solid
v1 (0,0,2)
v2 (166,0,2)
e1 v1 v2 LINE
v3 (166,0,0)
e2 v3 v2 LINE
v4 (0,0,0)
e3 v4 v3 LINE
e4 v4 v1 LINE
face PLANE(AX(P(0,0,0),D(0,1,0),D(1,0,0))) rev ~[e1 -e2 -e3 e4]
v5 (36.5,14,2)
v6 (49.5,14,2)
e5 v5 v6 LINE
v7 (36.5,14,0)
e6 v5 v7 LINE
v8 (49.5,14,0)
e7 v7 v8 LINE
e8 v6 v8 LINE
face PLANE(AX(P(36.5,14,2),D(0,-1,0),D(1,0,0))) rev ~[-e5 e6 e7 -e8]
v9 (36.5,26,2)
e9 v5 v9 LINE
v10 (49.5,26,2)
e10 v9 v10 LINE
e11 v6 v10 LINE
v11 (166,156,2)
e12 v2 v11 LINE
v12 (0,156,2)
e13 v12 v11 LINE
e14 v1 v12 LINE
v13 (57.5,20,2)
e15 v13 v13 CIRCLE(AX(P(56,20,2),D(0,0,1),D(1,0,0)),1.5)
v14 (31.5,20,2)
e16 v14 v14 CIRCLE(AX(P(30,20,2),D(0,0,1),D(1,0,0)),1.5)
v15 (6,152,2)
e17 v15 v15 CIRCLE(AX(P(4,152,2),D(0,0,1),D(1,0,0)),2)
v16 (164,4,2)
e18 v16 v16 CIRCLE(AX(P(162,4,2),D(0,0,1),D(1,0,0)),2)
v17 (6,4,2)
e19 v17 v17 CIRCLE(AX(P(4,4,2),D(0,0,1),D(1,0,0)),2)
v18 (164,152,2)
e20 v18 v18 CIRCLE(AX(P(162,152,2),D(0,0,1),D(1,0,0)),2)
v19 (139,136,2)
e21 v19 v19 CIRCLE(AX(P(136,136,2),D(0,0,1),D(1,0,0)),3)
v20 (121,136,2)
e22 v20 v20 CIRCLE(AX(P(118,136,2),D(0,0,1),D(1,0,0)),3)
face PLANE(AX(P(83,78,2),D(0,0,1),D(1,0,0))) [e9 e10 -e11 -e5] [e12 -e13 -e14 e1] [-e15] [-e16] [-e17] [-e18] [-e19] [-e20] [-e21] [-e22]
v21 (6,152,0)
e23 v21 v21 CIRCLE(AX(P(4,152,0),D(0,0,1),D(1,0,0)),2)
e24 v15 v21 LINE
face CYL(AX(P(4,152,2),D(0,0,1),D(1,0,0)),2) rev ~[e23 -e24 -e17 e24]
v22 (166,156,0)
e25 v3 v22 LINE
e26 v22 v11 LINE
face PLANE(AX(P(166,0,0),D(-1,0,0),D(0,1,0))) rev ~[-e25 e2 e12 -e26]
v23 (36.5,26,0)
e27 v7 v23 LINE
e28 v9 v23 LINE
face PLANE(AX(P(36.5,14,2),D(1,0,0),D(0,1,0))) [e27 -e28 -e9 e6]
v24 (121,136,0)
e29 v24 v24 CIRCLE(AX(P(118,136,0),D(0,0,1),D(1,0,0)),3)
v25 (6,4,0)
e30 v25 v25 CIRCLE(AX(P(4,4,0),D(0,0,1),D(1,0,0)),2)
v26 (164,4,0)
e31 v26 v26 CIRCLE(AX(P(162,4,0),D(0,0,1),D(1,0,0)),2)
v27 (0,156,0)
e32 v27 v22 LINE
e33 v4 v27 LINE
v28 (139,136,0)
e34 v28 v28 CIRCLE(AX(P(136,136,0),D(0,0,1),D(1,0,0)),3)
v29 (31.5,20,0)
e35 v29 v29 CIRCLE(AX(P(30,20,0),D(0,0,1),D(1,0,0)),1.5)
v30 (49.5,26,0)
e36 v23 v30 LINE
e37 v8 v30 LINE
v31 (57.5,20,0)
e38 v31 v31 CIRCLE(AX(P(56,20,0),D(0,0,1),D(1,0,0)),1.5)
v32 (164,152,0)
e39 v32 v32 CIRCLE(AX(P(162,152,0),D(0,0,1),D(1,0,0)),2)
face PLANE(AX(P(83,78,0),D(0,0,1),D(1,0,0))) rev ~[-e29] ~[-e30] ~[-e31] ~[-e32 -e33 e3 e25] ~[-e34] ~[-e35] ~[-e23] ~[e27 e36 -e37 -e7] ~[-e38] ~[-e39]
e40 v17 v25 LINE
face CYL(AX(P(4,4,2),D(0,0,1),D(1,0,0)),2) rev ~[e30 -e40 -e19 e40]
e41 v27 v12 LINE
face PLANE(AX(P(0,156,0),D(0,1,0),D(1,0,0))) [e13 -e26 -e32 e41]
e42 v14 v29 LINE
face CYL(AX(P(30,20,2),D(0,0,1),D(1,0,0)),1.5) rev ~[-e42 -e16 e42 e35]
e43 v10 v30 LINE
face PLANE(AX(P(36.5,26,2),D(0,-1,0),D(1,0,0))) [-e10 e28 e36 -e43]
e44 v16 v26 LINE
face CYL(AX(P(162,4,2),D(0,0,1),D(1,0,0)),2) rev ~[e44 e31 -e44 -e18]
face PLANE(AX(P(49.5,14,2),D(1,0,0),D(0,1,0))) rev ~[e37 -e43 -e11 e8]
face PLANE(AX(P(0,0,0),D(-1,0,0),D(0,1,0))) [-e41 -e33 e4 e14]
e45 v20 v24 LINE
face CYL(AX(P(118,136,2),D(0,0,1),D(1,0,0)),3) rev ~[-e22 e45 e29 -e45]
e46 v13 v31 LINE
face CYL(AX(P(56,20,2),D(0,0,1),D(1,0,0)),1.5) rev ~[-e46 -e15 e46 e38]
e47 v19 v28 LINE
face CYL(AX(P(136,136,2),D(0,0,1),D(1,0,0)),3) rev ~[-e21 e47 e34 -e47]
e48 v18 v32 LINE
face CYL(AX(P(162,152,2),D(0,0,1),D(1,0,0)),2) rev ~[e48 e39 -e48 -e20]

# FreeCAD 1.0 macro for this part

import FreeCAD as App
import Part
import Sketcher
Q = App.Units.Quantity


def add_polygon(sketch, points):
    """Adds a closed chain of lines whose ends are joined by coincident constraints."""
    first, n = sketch.GeometryCount, len(points)
    for a, b in zip(points, points[1:] + points[:1]):
        sketch.addGeometry(Part.LineSegment(App.Vector(*a, 0), App.Vector(*b, 0)), False)
    for i in range(n):
        sketch.addConstraint(Sketcher.Constraint("Coincident", first + i, 2, first + (i + 1) % n, 1))

doc = App.newDocument("Part")
body = doc.addObject("PartDesign::Body", "Body")

sketch1 = doc.addObject("Sketcher::SketchObject", "Sketch")
body.addObject(sketch1)
sketch1.AttachmentSupport = (doc.XY_Plane, [""])
sketch1.MapMode = "FlatFace"
add_polygon(sketch1, [(0, 156), (0, 0), (166, 0), (166, 156)])
sketch1.addConstraint([
    Sketcher.Constraint("Vertical", 0),
    Sketcher.Constraint("Horizontal", 1),
    Sketcher.Constraint("Vertical", 2),
    Sketcher.Constraint("Horizontal", 3),
    Sketcher.Constraint("Coincident", 0, 2, -1, 1),
    Sketcher.Constraint("DistanceX", 1, 1, 1, 2, Q("166 mm")),
    Sketcher.Constraint("DistanceY", 0, 2, 0, 1, Q("156 mm")),
])
pad1 = doc.addObject("PartDesign::Pad", "Pad")
body.addObject(pad1)
pad1.Profile = sketch1
pad1.Length = 2

sketch2 = doc.addObject("Sketcher::SketchObject", "Sketch001")
body.addObject(sketch2)
sketch2.AttachmentSupport = (doc.XY_Plane, [""])
sketch2.MapMode = "FlatFace"
sketch2.AttachmentOffset = App.Placement(App.Vector(0, 0, 2), App.Rotation())
sketch2.addGeometry([
    Part.Circle(App.Vector(4, 152, 0), App.Vector(0, 0, 1), 2),
    Part.Circle(App.Vector(162, 152, 0), App.Vector(0, 0, 1), 2),
    Part.Circle(App.Vector(4, 4, 0), App.Vector(0, 0, 1), 2),
    Part.Circle(App.Vector(162, 4, 0), App.Vector(0, 0, 1), 2),
], False)
sketch2.addConstraint([
    Sketcher.Constraint("Equal", 0, 1),
    Sketcher.Constraint("Equal", 1, 2),
    Sketcher.Constraint("Equal", 2, 3),
    Sketcher.Constraint("Horizontal", 0, 3, 1, 3),
    Sketcher.Constraint("Horizontal", 2, 3, 3, 3),
    Sketcher.Constraint("Vertical", 0, 3, 2, 3),
    Sketcher.Constraint("Vertical", 1, 3, 3, 3),
    Sketcher.Constraint("Diameter", 0, Q("4 mm")),
    Sketcher.Constraint("DistanceX", -1, 1, 0, 3, Q("4 mm")),
    Sketcher.Constraint("DistanceY", -1, 1, 0, 3, Q("152 mm")),
    Sketcher.Constraint("DistanceX", -1, 1, 1, 3, Q("162 mm")),
    Sketcher.Constraint("DistanceY", -1, 1, 2, 3, Q("4 mm")),
])
pocket1 = doc.addObject("PartDesign::Pocket", "Pocket")
body.addObject(pocket1)
pocket1.Profile = sketch2
pocket1.Type = "ThroughAll"

sketch3 = doc.addObject("Sketcher::SketchObject", "Sketch002")
body.addObject(sketch3)
sketch3.AttachmentSupport = (doc.XY_Plane, [""])
sketch3.MapMode = "FlatFace"
sketch3.AttachmentOffset = App.Placement(App.Vector(0, 0, 2), App.Rotation())
sketch3.addGeometry([
    Part.Circle(App.Vector(118, 136, 0), App.Vector(0, 0, 1), 3),
    Part.Circle(App.Vector(136, 136, 0), App.Vector(0, 0, 1), 3),
], False)
sketch3.addConstraint([
    Sketcher.Constraint("Equal", 0, 1),
    Sketcher.Constraint("Horizontal", 0, 3, 1, 3),
    Sketcher.Constraint("Diameter", 0, Q("6 mm")),
    Sketcher.Constraint("DistanceX", -1, 1, 0, 3, Q("118 mm")),
    Sketcher.Constraint("DistanceY", -1, 1, 0, 3, Q("136 mm")),
    Sketcher.Constraint("DistanceX", -1, 1, 1, 3, Q("136 mm")),
])
pocket2 = doc.addObject("PartDesign::Pocket", "Pocket001")
body.addObject(pocket2)
pocket2.Profile = sketch3
pocket2.Type = "ThroughAll"

sketch4 = doc.addObject("Sketcher::SketchObject", "Sketch003")
body.addObject(sketch4)
sketch4.AttachmentSupport = (doc.XY_Plane, [""])
sketch4.MapMode = "FlatFace"
sketch4.AttachmentOffset = App.Placement(App.Vector(0, 0, 2), App.Rotation())
sketch4.addGeometry(Part.Circle(App.Vector(30, 20, 0), App.Vector(0, 0, 1), 1.5), False)
sketch4.addGeometry(Part.Circle(App.Vector(56, 20, 0), App.Vector(0, 0, 1), 1.5), False)
add_polygon(sketch4, [(36.5, 26), (36.5, 14), (49.5, 14), (49.5, 26)])
sketch4.addConstraint([
    Sketcher.Constraint("Vertical", 2),
    Sketcher.Constraint("Horizontal", 3),
    Sketcher.Constraint("Vertical", 4),
    Sketcher.Constraint("Horizontal", 5),
    Sketcher.Constraint("Equal", 0, 1),
    Sketcher.Constraint("Horizontal", 0, 3, 1, 3),
    Sketcher.Constraint("Diameter", 0, Q("3 mm")),
    Sketcher.Constraint("DistanceX", 3, 1, 3, 2, Q("13 mm")),
    Sketcher.Constraint("DistanceY", 2, 2, 2, 1, Q("12 mm")),
    Sketcher.Constraint("DistanceX", -1, 1, 0, 3, Q("30 mm")),
    Sketcher.Constraint("DistanceY", -1, 1, 0, 3, Q("20 mm")),
    Sketcher.Constraint("DistanceX", -1, 1, 1, 3, Q("56 mm")),
    Sketcher.Constraint("DistanceY", -1, 1, 2, 2, Q("14 mm")),
    Sketcher.Constraint("DistanceX", -1, 1, 2, 2, Q("36.5 mm")),
])
pocket3 = doc.addObject("PartDesign::Pocket", "Pocket002")
body.addObject(pocket3)
pocket3.Profile = sketch4
pocket3.Type = "ThroughAll"

doc.recompute()
